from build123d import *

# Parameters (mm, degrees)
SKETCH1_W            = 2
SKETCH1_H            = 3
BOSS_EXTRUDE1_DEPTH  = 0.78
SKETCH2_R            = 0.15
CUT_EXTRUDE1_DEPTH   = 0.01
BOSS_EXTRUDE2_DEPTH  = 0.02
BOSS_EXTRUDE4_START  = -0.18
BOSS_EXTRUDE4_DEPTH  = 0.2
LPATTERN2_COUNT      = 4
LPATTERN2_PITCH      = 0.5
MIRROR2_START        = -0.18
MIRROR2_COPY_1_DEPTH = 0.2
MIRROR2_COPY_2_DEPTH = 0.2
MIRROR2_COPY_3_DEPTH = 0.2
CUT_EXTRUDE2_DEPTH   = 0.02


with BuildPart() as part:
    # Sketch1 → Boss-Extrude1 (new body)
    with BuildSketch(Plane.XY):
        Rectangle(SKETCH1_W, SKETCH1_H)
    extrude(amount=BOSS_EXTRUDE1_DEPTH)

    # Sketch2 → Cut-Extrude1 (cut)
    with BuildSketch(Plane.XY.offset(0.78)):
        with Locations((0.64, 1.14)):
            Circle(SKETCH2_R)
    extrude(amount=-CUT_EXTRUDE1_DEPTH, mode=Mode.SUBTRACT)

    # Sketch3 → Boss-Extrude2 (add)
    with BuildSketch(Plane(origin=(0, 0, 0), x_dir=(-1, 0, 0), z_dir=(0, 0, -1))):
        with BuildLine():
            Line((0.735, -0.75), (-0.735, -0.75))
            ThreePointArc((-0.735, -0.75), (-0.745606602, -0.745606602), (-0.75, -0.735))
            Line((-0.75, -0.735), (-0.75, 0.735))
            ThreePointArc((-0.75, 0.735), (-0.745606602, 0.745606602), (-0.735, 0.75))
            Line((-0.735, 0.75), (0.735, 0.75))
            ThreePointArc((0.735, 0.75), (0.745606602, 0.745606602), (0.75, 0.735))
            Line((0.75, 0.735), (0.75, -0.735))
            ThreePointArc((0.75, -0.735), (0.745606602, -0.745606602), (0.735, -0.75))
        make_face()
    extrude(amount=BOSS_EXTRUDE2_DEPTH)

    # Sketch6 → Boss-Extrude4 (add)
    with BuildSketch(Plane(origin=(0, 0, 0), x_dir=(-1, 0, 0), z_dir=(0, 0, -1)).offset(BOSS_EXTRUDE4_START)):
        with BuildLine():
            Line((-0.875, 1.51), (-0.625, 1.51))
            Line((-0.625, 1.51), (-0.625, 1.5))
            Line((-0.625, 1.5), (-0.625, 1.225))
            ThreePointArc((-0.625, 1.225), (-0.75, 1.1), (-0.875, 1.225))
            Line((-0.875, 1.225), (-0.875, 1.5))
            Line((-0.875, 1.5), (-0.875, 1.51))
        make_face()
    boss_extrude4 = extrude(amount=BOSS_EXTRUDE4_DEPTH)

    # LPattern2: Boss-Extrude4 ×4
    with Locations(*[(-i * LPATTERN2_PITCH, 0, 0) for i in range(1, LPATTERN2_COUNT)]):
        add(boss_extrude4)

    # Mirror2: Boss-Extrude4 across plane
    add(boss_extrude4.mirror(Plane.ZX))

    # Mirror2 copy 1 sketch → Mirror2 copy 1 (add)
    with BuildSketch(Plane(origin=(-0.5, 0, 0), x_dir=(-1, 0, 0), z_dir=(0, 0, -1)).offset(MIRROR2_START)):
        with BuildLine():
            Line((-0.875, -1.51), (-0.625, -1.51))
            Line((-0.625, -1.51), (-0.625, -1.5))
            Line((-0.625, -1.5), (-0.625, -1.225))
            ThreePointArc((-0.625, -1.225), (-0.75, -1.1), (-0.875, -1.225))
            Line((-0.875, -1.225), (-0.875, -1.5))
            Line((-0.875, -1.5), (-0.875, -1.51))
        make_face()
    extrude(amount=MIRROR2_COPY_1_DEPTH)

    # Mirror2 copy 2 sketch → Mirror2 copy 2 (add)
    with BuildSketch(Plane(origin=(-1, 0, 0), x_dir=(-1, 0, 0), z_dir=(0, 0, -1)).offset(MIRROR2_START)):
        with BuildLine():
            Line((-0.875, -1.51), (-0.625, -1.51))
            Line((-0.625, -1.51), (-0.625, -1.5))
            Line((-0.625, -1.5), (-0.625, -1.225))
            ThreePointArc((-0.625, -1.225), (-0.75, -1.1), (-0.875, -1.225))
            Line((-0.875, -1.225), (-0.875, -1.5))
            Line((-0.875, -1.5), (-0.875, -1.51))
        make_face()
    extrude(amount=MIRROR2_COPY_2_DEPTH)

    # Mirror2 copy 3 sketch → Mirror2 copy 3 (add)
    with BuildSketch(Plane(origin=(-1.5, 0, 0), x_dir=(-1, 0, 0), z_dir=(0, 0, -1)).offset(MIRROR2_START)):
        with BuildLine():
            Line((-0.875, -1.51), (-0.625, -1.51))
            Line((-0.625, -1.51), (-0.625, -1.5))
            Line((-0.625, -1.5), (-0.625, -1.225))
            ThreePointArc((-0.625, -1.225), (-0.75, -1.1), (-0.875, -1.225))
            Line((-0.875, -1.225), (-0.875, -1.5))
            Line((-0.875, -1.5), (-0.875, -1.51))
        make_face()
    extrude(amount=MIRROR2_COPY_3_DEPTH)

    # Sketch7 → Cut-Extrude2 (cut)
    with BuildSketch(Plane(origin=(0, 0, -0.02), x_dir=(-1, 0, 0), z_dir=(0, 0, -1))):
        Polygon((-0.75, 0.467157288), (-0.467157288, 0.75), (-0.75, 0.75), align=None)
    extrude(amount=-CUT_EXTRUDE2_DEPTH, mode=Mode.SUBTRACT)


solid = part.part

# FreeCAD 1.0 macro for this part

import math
import FreeCAD as App
import Part
import Sketcher
from FreeCAD import Vector
Q = App.Units.Quantity

doc = App.newDocument("Part")
body = doc.addObject("PartDesign::Body", "Body")

# Sketch on XY plane
sketch1 = body.newObject("Sketcher::SketchObject", "Sketch")
sketch1.AttachmentSupport = (doc.getObject("XY_Plane"), [""])
sketch1.MapMode = "FlatFace"
sketch1.addGeometry(Part.LineSegment(Vector(-1, 1.5, 0), Vector(-1, -1.5, 0)), False)
sketch1.addGeometry(Part.LineSegment(Vector(-1, -1.5, 0), Vector(1, -1.5, 0)), False)
sketch1.addGeometry(Part.LineSegment(Vector(1, -1.5, 0), Vector(1, 1.5, 0)), False)
sketch1.addGeometry(Part.LineSegment(Vector(1, 1.5, 0), Vector(-1, 1.5, 0)), False)
sketch1.addConstraint(Sketcher.Constraint("Coincident", 0, 2, 1, 1))
sketch1.addConstraint(Sketcher.Constraint("Coincident", 1, 2, 2, 1))
sketch1.addConstraint(Sketcher.Constraint("Coincident", 2, 2, 3, 1))
sketch1.addConstraint(Sketcher.Constraint("Coincident", 3, 2, 0, 1))
sketch1.addConstraint(Sketcher.Constraint("Vertical", 0))
sketch1.addConstraint(Sketcher.Constraint("Horizontal", 1))
sketch1.addConstraint(Sketcher.Constraint("Vertical", 2))
sketch1.addConstraint(Sketcher.Constraint("Horizontal", 3))
sketch1.addConstraint(Sketcher.Constraint("Symmetric", 0, 2, 2, 2, -1, 1))
sketch1.addConstraint(Sketcher.Constraint("DistanceX", 1, 1, 1, 2, Q("2 mm")))
sketch1.addConstraint(Sketcher.Constraint("DistanceY", 0, 2, 0, 1, Q("3 mm")))
pad1 = body.newObject("PartDesign::Pad", "Pad")
pad1.Profile = sketch1
pad1.Length = 0.78

# Sketch on XY plane
sketch2 = body.newObject("Sketcher::SketchObject", "Sketch001")
sketch2.AttachmentSupport = (doc.getObject("XY_Plane"), [""])
sketch2.MapMode = "FlatFace"
sketch2.AttachmentOffset = App.Placement(Vector(0, 0, 0.78), App.Rotation())
sketch2.addGeometry(Part.Circle(Vector(0.64, 1.14, 0), Vector(0, 0, 1), 0.15), False)
sketch2.addConstraint(Sketcher.Constraint("Diameter", 0, Q("0.3 mm")))
sketch2.addConstraint(Sketcher.Constraint("DistanceX", -1, 1, 0, 3, Q("0.64 mm")))
sketch2.addConstraint(Sketcher.Constraint("DistanceY", -1, 1, 0, 3, Q("1.14 mm")))
pocket1 = body.newObject("PartDesign::Pocket", "Pocket")
pocket1.Profile = sketch2
pocket1.Length = 0.01

# Sketch on XY plane
sketch3 = body.newObject("Sketcher::SketchObject", "Sketch002")
sketch3.AttachmentSupport = (doc.getObject("XY_Plane"), [""])
sketch3.MapMode = "FlatFace"
sketch3.addGeometry(Part.LineSegment(Vector(0.735, -0.75, 0), Vector(-0.735, -0.75, 0)), False)
sketch3.addGeometry(Part.ArcOfCircle(Part.Circle(Vector(-0.735, -0.735, 0), Vector(0, 0, 1), 0.015), math.radians(180), math.radians(270)), False)
sketch3.addGeometry(Part.LineSegment(Vector(-0.75, -0.735, 0), Vector(-0.75, 0.735, 0)), False)
sketch3.addGeometry(Part.ArcOfCircle(Part.Circle(Vector(-0.735, 0.735, 0), Vector(0, 0, 1), 0.015), math.radians(90), math.radians(180)), False)
sketch3.addGeometry(Part.LineSegment(Vector(-0.735, 0.75, 0), Vector(0.735, 0.75, 0)), False)
sketch3.addGeometry(Part.ArcOfCircle(Part.Circle(Vector(0.735, 0.735, 0), Vector(0, 0, 1), 0.015), math.radians(0), math.radians(90)), False)
sketch3.addGeometry(Part.LineSegment(Vector(0.75, 0.735, 0), Vector(0.75, -0.735, 0)), False)
sketch3.addGeometry(Part.ArcOfCircle(Part.Circle(Vector(0.735, -0.735, 0), Vector(0, 0, 1), 0.015), math.radians(-90), math.radians(0)), False)
sketch3.addConstraint(Sketcher.Constraint("Tangent", 0, 2, 1, 2))
sketch3.addConstraint(Sketcher.Constraint("Tangent", 1, 1, 2, 1))
sketch3.addConstraint(Sketcher.Constraint("Tangent", 2, 2, 3, 2))
sketch3.addConstraint(Sketcher.Constraint("Tangent", 3, 1, 4, 1))
sketch3.addConstraint(Sketcher.Constraint("Tangent", 4, 2, 5, 2))
sketch3.addConstraint(Sketcher.Constraint("Tangent", 5, 1, 6, 1))
sketch3.addConstraint(Sketcher.Constraint("Tangent", 6, 2, 7, 2))
sketch3.addConstraint(Sketcher.Constraint("Tangent", 7, 1, 0, 1))
sketch3.addConstraint(Sketcher.Constraint("Horizontal", 0))
sketch3.addConstraint(Sketcher.Constraint("Vertical", 2))
sketch3.addConstraint(Sketcher.Constraint("Horizontal", 4))
sketch3.addConstraint(Sketcher.Constraint("Vertical", 6))
sketch3.addConstraint(Sketcher.Constraint("Equal", 1, 3))
sketch3.addConstraint(Sketcher.Constraint("Equal", 3, 5))
sketch3.addConstraint(Sketcher.Constraint("Equal", 5, 7))
sketch3.addConstraint(Sketcher.Constraint("Symmetric", 1, 3, 5, 3, -1, 1))
sketch3.addConstraint(Sketcher.Constraint("Equal", 4, 2))
sketch3.addConstraint(Sketcher.Constraint("Radius", 1, Q("0.015 mm")))
sketch3.addConstraint(Sketcher.Constraint("DistanceX", 0, 2, 0, 1, Q("1.47 mm")))
pad2 = body.newObject("PartDesign::Pad", "Pad001")
pad2.Profile = sketch3
pad2.Length = 0.02
pad2.Reversed = True

# Sketch on XY plane
sketch4 = body.newObject("Sketcher::SketchObject", "Sketch003")
sketch4.AttachmentSupport = (doc.getObject("XY_Plane"), [""])
sketch4.MapMode = "FlatFace"
sketch4.AttachmentOffset = App.Placement(Vector(0, 0, 0.18), App.Rotation())
sketch4.addGeometry(Part.LineSegment(Vector(0.62, 1.51, 0), Vector(0.88, 1.51, 0)), False)
sketch4.addGeometry(Part.LineSegment(Vector(0.88, 1.51, 0), Vector(0.88, 1.23, 0)), False)
sketch4.addGeometry(Part.ArcOfCircle(Part.Circle(Vector(0.75, 1.23, 0), Vector(0, 0, 1), 0.12), math.radians(180), math.radians(360)), False)
sketch4.addGeometry(Part.LineSegment(Vector(0.62, 1.23, 0), Vector(0.62, 1.51, 0)), False)
sketch4.addConstraint(Sketcher.Constraint("Coincident", 0, 2, 1, 1))
sketch4.addConstraint(Sketcher.Constraint("Tangent", 1, 2, 2, 2))
sketch4.addConstraint(Sketcher.Constraint("Tangent", 2, 1, 3, 1))
sketch4.addConstraint(Sketcher.Constraint("Coincident", 3, 2, 0, 1))
sketch4.addConstraint(Sketcher.Constraint("Horizontal", 0))
sketch4.addConstraint(Sketcher.Constraint("Vertical", 1))
sketch4.addConstraint(Sketcher.Constraint("Vertical", 3))
sketch4.addConstraint(Sketcher.Constraint("Radius", 2, Q("0.125 mm")))
sketch4.addConstraint(Sketcher.Constraint("DistanceY", 1, 2, 1, 1, Q("0.285 mm")))
sketch4.addConstraint(Sketcher.Constraint("DistanceX", -1, 1, 2, 3, Q("0.75 mm")))
sketch4.addConstraint(Sketcher.Constraint("DistanceY", -1, 1, 0, 2, Q("1.51 mm")))
pad3 = body.newObject("PartDesign::Pad", "Pad002")
pad3.Profile = sketch4
pad3.Length = 0.2
pad3.Reversed = True
doc.recompute()

linearpattern = body.newObject("PartDesign::LinearPattern", "LinearPattern")
linearpattern.Originals = [pad3]
linearpattern.Direction = (doc.getObject("X_Axis"), [""])
linearpattern.Mode = "offset"
linearpattern.Offset = 0.5
linearpattern.Occurrences = 4
linearpattern.Reversed = True
body.Tip = linearpattern
doc.recompute()

mirrored = body.newObject("PartDesign::Mirrored", "Mirrored")
mirrored.Originals = [pad3]
mirrored.MirrorPlane = (doc.getObject("XZ_Plane"), [""])
body.Tip = mirrored

# Sketch on XY plane
sketch5 = body.newObject("Sketcher::SketchObject", "Sketch004")
sketch5.AttachmentSupport = (doc.getObject("XY_Plane"), [""])
sketch5.MapMode = "FlatFace"
sketch5.AttachmentOffset = App.Placement(Vector(0, 0, 0.18), App.Rotation())
sketch5.addGeometry(Part.LineSegment(Vector(0.38, -1.51, 0), Vector(0.12, -1.51, 0)), False)
sketch5.addGeometry(Part.LineSegment(Vector(0.12, -1.51, 0), Vector(0.12, -1.23, 0)), False)
sketch5.addGeometry(Part.ArcOfCircle(Part.Circle(Vector(0.25, -1.23, 0), Vector(0, 0, 1), 0.12), math.radians(0), math.radians(180)), False)
sketch5.addGeometry(Part.LineSegment(Vector(0.38, -1.23, 0), Vector(0.38, -1.51, 0)), False)
sketch5.addConstraint(Sketcher.Constraint("Coincident", 0, 2, 1, 1))
sketch5.addConstraint(Sketcher.Constraint("Tangent", 1, 2, 2, 2))
sketch5.addConstraint(Sketcher.Constraint("Tangent", 2, 1, 3, 1))
sketch5.addConstraint(Sketcher.Constraint("Coincident", 3, 2, 0, 1))
sketch5.addConstraint(Sketcher.Constraint("Horizontal", 0))
sketch5.addConstraint(Sketcher.Constraint("Vertical", 1))
sketch5.addConstraint(Sketcher.Constraint("Vertical", 3))
sketch5.addConstraint(Sketcher.Constraint("Radius", 2, Q("0.125 mm")))
sketch5.addConstraint(Sketcher.Constraint("DistanceY", 1, 1, 1, 2, Q("0.285 mm")))
sketch5.addConstraint(Sketcher.Constraint("DistanceX", -1, 1, 2, 3, Q("0.25 mm")))
sketch5.addConstraint(Sketcher.Constraint("DistanceY", 0, 2, -1, 1, Q("1.51 mm")))
pad4 = body.newObject("PartDesign::Pad", "Pad003")
pad4.Profile = sketch5
pad4.Length = 0.2
pad4.Reversed = True

# Sketch on XY plane
sketch6 = body.newObject("Sketcher::SketchObject", "Sketch005")
sketch6.AttachmentSupport = (doc.getObject("XY_Plane"), [""])
sketch6.MapMode = "FlatFace"
sketch6.AttachmentOffset = App.Placement(Vector(0, 0, 0.18), App.Rotation())
sketch6.addGeometry(Part.LineSegment(Vector(-0.12, -1.51, 0), Vector(-0.38, -1.51, 0)), False)
sketch6.addGeometry(Part.LineSegment(Vector(-0.38, -1.51, 0), Vector(-0.38, -1.23, 0)), False)
sketch6.addGeometry(Part.ArcOfCircle(Part.Circle(Vector(-0.25, -1.23, 0), Vector(0, 0, 1), 0.12), math.radians(0), math.radians(180)), False)
sketch6.addGeometry(Part.LineSegment(Vector(-0.12, -1.23, 0), Vector(-0.12, -1.51, 0)), False)
sketch6.addConstraint(Sketcher.Constraint("Coincident", 0, 2, 1, 1))
sketch6.addConstraint(Sketcher.Constraint("Tangent", 1, 2, 2, 2))
sketch6.addConstraint(Sketcher.Constraint("Tangent", 2, 1, 3, 1))
sketch6.addConstraint(Sketcher.Constraint("Coincident", 3, 2, 0, 1))
sketch6.addConstraint(Sketcher.Constraint("Horizontal", 0))
sketch6.addConstraint(Sketcher.Constraint("Vertical", 1))
sketch6.addConstraint(Sketcher.Constraint("Vertical", 3))
sketch6.addConstraint(Sketcher.Constraint("Radius", 2, Q("0.125 mm")))
sketch6.addConstraint(Sketcher.Constraint("DistanceY", 1, 1, 1, 2, Q("0.285 mm")))
sketch6.addConstraint(Sketcher.Constraint("DistanceX", 2, 3, -1, 1, Q("0.25 mm")))
sketch6.addConstraint(Sketcher.Constraint("DistanceY", 0, 2, -1, 1, Q("1.51 mm")))
pad5 = body.newObject("PartDesign::Pad", "Pad004")
pad5.Profile = sketch6
pad5.Length = 0.2
pad5.Reversed = True

# Sketch on XY plane
sketch7 = body.newObject("Sketcher::SketchObject", "Sketch006")
sketch7.AttachmentSupport = (doc.getObject("XY_Plane"), [""])
sketch7.MapMode = "FlatFace"
sketch7.AttachmentOffset = App.Placement(Vector(0, 0, 0.18), App.Rotation())
sketch7.addGeometry(Part.LineSegment(Vector(-0.62, -1.51, 0), Vector(-0.88, -1.51, 0)), False)
sketch7.addGeometry(Part.LineSegment(Vector(-0.88, -1.51, 0), Vector(-0.88, -1.23, 0)), False)
sketch7.addGeometry(Part.ArcOfCircle(Part.Circle(Vector(-0.75, -1.23, 0), Vector(0, 0, 1), 0.12), math.radians(0), math.radians(180)), False)
sketch7.addGeometry(Part.LineSegment(Vector(-0.62, -1.23, 0), Vector(-0.62, -1.51, 0)), False)
sketch7.addConstraint(Sketcher.Constraint("Coincident", 0, 2, 1, 1))
sketch7.addConstraint(Sketcher.Constraint("Tangent", 1, 2, 2, 2))
sketch7.addConstraint(Sketcher.Constraint("Tangent", 2, 1, 3, 1))
sketch7.addConstraint(Sketcher.Constraint("Coincident", 3, 2, 0, 1))
sketch7.addConstraint(Sketcher.Constraint("Horizontal", 0))
sketch7.addConstraint(Sketcher.Constraint("Vertical", 1))
sketch7.addConstraint(Sketcher.Constraint("Vertical", 3))
sketch7.addConstraint(Sketcher.Constraint("Radius", 2, Q("0.125 mm")))
sketch7.addConstraint(Sketcher.Constraint("DistanceY", 1, 1, 1, 2, Q("0.285 mm")))
sketch7.addConstraint(Sketcher.Constraint("DistanceX", 2, 3, -1, 1, Q("0.75 mm")))
sketch7.addConstraint(Sketcher.Constraint("DistanceY", 0, 2, -1, 1, Q("1.51 mm")))
pad6 = body.newObject("PartDesign::Pad", "Pad005")
pad6.Profile = sketch7
pad6.Length = 0.2
pad6.Reversed = True

# Sketch on XY plane
sketch8 = body.newObject("Sketcher::SketchObject", "Sketch007")
sketch8.AttachmentSupport = (doc.getObject("XY_Plane"), [""])
sketch8.MapMode = "FlatFace"
sketch8.AttachmentOffset = App.Placement(Vector(0, 0, -0.02), App.Rotation())
sketch8.addGeometry(Part.LineSegment(Vector(0.75, 0.47, 0), Vector(0.47, 0.75, 0)), False)
sketch8.addGeometry(Part.LineSegment(Vector(0.47, 0.75, 0), Vector(0.75, 0.75, 0)), False)
sketch8.addGeometry(Part.LineSegment(Vector(0.75, 0.75, 0), Vector(0.75, 0.47, 0)), False)
sketch8.addConstraint(Sketcher.Constraint("Coincident", 0, 2, 1, 1))
sketch8.addConstraint(Sketcher.Constraint("Coincident", 1, 2, 2, 1))
sketch8.addConstraint(Sketcher.Constraint("Coincident", 2, 2, 0, 1))
sketch8.addConstraint(Sketcher.Constraint("Horizontal", 1))
sketch8.addConstraint(Sketcher.Constraint("Vertical", 2))
sketch8.addConstraint(Sketcher.Constraint("Equal", 1, 2))
sketch8.addConstraint(Sketcher.Constraint("Distance", 0, Q("0.4 mm")))
sketch8.addConstraint(Sketcher.Constraint("DistanceY", -1, 1, 0, 2, Q("0.75 mm")))
sketch8.addConstraint(Sketcher.Constraint("DistanceX", -1, 1, 1, 2, Q("0.75 mm")))
pocket2 = body.newObject("PartDesign::Pocket", "Pocket001")
pocket2.Profile = sketch8
pocket2.Length = 0.02
pocket2.Reversed = True

doc.recompute()
